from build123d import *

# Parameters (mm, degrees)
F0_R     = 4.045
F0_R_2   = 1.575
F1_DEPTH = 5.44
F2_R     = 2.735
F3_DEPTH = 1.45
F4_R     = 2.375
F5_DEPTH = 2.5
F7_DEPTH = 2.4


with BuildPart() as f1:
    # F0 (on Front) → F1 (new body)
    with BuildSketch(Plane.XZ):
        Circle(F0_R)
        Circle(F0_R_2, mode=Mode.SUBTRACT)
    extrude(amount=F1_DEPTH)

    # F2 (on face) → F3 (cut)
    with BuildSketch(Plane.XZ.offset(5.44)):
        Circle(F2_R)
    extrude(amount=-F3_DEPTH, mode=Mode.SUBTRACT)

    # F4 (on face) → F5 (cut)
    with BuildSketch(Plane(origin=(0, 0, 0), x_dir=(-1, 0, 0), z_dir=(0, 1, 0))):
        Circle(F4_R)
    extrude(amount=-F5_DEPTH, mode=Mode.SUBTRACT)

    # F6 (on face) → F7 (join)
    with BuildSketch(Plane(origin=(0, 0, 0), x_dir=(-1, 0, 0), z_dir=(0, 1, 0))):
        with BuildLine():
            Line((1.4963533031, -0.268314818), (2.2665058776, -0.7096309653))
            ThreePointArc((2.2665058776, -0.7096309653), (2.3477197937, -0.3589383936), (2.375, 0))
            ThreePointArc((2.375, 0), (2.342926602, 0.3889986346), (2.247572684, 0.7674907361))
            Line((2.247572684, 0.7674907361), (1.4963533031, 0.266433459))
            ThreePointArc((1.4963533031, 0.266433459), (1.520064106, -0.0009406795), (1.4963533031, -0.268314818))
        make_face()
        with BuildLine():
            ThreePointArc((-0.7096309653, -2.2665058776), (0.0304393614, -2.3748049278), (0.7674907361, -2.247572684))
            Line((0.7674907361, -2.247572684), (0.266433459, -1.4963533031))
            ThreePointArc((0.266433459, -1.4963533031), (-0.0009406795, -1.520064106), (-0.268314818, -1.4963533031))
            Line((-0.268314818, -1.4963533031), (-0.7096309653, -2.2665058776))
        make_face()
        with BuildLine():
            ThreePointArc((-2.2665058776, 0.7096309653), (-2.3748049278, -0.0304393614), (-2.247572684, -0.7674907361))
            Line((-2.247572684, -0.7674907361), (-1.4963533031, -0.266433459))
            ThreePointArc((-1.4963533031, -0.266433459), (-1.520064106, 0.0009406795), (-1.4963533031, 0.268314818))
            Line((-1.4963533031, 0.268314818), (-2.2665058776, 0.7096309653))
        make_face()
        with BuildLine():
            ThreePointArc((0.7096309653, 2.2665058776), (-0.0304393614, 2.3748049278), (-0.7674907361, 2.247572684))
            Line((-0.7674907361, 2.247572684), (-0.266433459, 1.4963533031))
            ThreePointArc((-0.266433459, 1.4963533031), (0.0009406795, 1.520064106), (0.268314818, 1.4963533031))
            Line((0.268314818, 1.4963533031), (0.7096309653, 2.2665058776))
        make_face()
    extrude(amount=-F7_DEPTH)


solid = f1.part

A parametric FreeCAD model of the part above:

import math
import FreeCAD as App
import Part
import Sketcher
from FreeCAD import Vector
Q = App.Units.Quantity

doc = App.newDocument("Part")
body = doc.addObject("PartDesign::Body", "Body")

sketch1 = body.newObject("Sketcher::SketchObject", "Sketch")
sketch1.AttachmentSupport = (doc.getObject("XZ_Plane"), [""])
sketch1.MapMode = "FlatFace"
sketch1.addGeometry(Part.Circle(Vector(0, 0, 0), Vector(0, 0, 1), 4), False)
sketch1.addGeometry(Part.Circle(Vector(0, 0, 0), Vector(0, 0, 1), 1.6), False)
sketch1.addConstraint(Sketcher.Constraint("Coincident", 0, 3, -1, 1))
sketch1.addConstraint(Sketcher.Constraint("Coincident", 1, 3, -1, 1))
sketch1.addConstraint(Sketcher.Constraint("Diameter", 0, Q("8.09 mm")))
sketch1.addConstraint(Sketcher.Constraint("Diameter", 1, Q("3.15 mm")))
pad1 = body.newObject("PartDesign::Pad", "Pad")
pad1.Profile = sketch1
pad1.Length = 5.44

sketch2 = body.newObject("Sketcher::SketchObject", "Sketch001")
sketch2.AttachmentSupport = (doc.getObject("XZ_Plane"), [""])
sketch2.MapMode = "FlatFace"
sketch2.AttachmentOffset = App.Placement(Vector(0, 0, 5.44), App.Rotation())
sketch2.addGeometry(Part.Circle(Vector(0, 0, 0), Vector(0, 0, 1), 2.7), False)
sketch2.addConstraint(Sketcher.Constraint("Coincident", 0, 3, -1, 1))
sketch2.addConstraint(Sketcher.Constraint("Diameter", 0, Q("5.47 mm")))
pocket1 = body.newObject("PartDesign::Pocket", "Pocket")
pocket1.Profile = sketch2
pocket1.Length = 1.45

sketch3 = body.newObject("Sketcher::SketchObject", "Sketch002")
sketch3.AttachmentSupport = (doc.getObject("XZ_Plane"), [""])
sketch3.MapMode = "FlatFace"
sketch3.addGeometry(Part.Circle(Vector(0, 0, 0), Vector(0, 0, 1), 2.4), False)
sketch3.addConstraint(Sketcher.Constraint("Coincident", 0, 3, -1, 1))
sketch3.addConstraint(Sketcher.Constraint("Diameter", 0, Q("4.75 mm")))
pocket2 = body.newObject("PartDesign::Pocket", "Pocket001")
pocket2.Profile = sketch3
pocket2.Length = 2.5
pocket2.Reversed = True

sketch4 = body.newObject("Sketcher::SketchObject", "Sketch003")
sketch4.AttachmentSupport = (doc.getObject("XZ_Plane"), [""])
sketch4.MapMode = "FlatFace"
sketch4.addGeometry(Part.LineSegment(Vector(-1.5, -0.3, 0), Vector(-2.3, -0.7, 0)), False)
sketch4.addGeometry(Part.ArcOfCircle(Part.Circle(Vector(0, 0, 0), Vector(0, 0, 1), 2.4), math.radians(180), math.radians(197.39)), False)
sketch4.addGeometry(Part.ArcOfCircle(Part.Circle(Vector(0, 0, 0), Vector(0, 0, 1), 2.4), math.radians(161.15), math.radians(180)), False)
sketch4.addGeometry(Part.LineSegment(Vector(-2.2, 0.8, 0), Vector(-1.5, 0.3, 0)), False)
sketch4.addGeometry(Part.ArcOfCircle(Part.Circle(Vector(0, 0, 0), Vector(0, 0, 1), 1.5), math.radians(170), math.radians(190)), False)
sketch4.addGeometry(Part.ArcOfCircle(Part.Circle(Vector(0, 0, 0), Vector(0, 0, 1), 2.4), math.radians(-109), math.radians(-73)), False)
sketch4.addGeometry(Part.LineSegment(Vector(-0.8, -2.2, 0), Vector(-0.3, -1.5, 0)), False)
sketch4.addGeometry(Part.ArcOfCircle(Part.Circle(Vector(0, 0, 0), Vector(0, 0, 1), 1.5), math.radians(-100), math.radians(-80)), False)
sketch4.addGeometry(Part.LineSegment(Vector(0.3, -1.5, 0), Vector(0.7, -2.3, 0)), False)
sketch4.addGeometry(Part.ArcOfCircle(Part.Circle(Vector(0, 0, 0), Vector(0, 0, 1), 2.4), math.radians(-19), math.radians(17)), False)
sketch4.addGeometry(Part.LineSegment(Vector(2.2, -0.8, 0), Vector(1.5, -0.3, 0)), False)
sketch4.addGeometry(Part.ArcOfCircle(Part.Circle(Vector(0, 0, 0), Vector(0, 0, 1), 1.5), math.radians(-10), math.radians(10)), False)
sketch4.addGeometry(Part.LineSegment(Vector(1.5, 0.3, 0), Vector(2.3, 0.7, 0)), False)
sketch4.addGeometry(Part.ArcOfCircle(Part.Circle(Vector(0, 0, 0), Vector(0, 0, 1), 2.4), math.radians(71), math.radians(107)), False)
sketch4.addGeometry(Part.LineSegment(Vector(0.8, 2.2, 0), Vector(0.3, 1.5, 0)), False)
sketch4.addGeometry(Part.ArcOfCircle(Part.Circle(Vector(0, 0, 0), Vector(0, 0, 1), 1.5), math.radians(80), math.radians(100)), False)
sketch4.addGeometry(Part.LineSegment(Vector(-0.3, 1.5, 0), Vector(-0.7, 2.3, 0)), False)
sketch4.addConstraint(Sketcher.Constraint("Coincident", 0, 2, 1, 2))
sketch4.addConstraint(Sketcher.Constraint("Tangent", 1, 1, 2, 2))
sketch4.addConstraint(Sketcher.Constraint("Coincident", 2, 1, 3, 1))
sketch4.addConstraint(Sketcher.Constraint("Coincident", 3, 2, 4, 1))
sketch4.addConstraint(Sketcher.Constraint("Coincident", 4, 2, 0, 1))
sketch4.addConstraint(Sketcher.Constraint("Coincident", 5, 1, 6, 1))
sketch4.addConstraint(Sketcher.Constraint("Coincident", 6, 2, 7, 1))
sketch4.addConstraint(Sketcher.Constraint("Coincident", 7, 2, 8, 1))
sketch4.addConstraint(Sketcher.Constraint("Coincident", 8, 2, 5, 2))
sketch4.addConstraint(Sketcher.Constraint("Coincident", 9, 1, 10, 1))
sketch4.addConstraint(Sketcher.Constraint("Coincident", 10, 2, 11, 1))
sketch4.addConstraint(Sketcher.Constraint("Coincident", 11, 2, 12, 1))
sketch4.addConstraint(Sketcher.Constraint("Coincident", 12, 2, 9, 2))
sketch4.addConstraint(Sketcher.Constraint("Coincident", 13, 1, 14, 1))
sketch4.addConstraint(Sketcher.Constraint("Coincident", 14, 2, 15, 1))
sketch4.addConstraint(Sketcher.Constraint("Coincident", 15, 2, 16, 1))
sketch4.addConstraint(Sketcher.Constraint("Coincident", 16, 2, 13, 2))
sketch4.addConstraint(Sketcher.Constraint("Coincident", 1, 3, -1, 1))
sketch4.addConstraint(Sketcher.Constraint("Coincident", 5, 3, -1, 1))
sketch4.addConstraint(Sketcher.Constraint("Coincident", 9, 3, -1, 1))
sketch4.addConstraint(Sketcher.Constraint("Coincident", 13, 3, -1, 1))
sketch4.addConstraint(Sketcher.Constraint("Equal", 1, 2))
sketch4.addConstraint(Sketcher.Constraint("Equal", 2, 5))
sketch4.addConstraint(Sketcher.Constraint("Equal", 4, 7))
sketch4.addConstraint(Sketcher.Constraint("Equal", 5, 9))
sketch4.addConstraint(Sketcher.Constraint("Equal", 7, 11))
sketch4.addConstraint(Sketcher.Constraint("Equal", 9, 13))
sketch4.addConstraint(Sketcher.Constraint("Equal", 11, 15))
sketch4.addConstraint(Sketcher.Constraint("Symmetric", 4, 3, 11, 3, -1, 1))
sketch4.addConstraint(Sketcher.Constraint("Symmetric", 7, 3, 15, 3, -1, 1))
sketch4.addConstraint(Sketcher.Constraint("PointOnObject", 1, 1, -1))
sketch4.addConstraint(Sketcher.Constraint("Perpendicular", 3, 6))
sketch4.addConstraint(Sketcher.Constraint("Perpendicular", 0, 8))
sketch4.addConstraint(Sketcher.Constraint("Perpendicular", 6, 10))
sketch4.addConstraint(Sketcher.Constraint("Perpendicular", 8, 12))
sketch4.addConstraint(Sketcher.Constraint("Perpendicular", 10, 14))
sketch4.addConstraint(Sketcher.Constraint("Perpendicular", 12, 16))
sketch4.addConstraint(Sketcher.Constraint("Horizontal", 6, 2, 7, 2))
sketch4.addConstraint(Sketcher.Constraint("Horizontal", 14, 2, 15, 2))
sketch4.addConstraint(Sketcher.Constraint("Vertical", 3, 2, 4, 2))
sketch4.addConstraint(Sketcher.Constraint("Vertical", 10, 2, 11, 2))
sketch4.addConstraint(Sketcher.Constraint("Equal", 3, 6))
sketch4.addConstraint(Sketcher.Constraint("Equal", 0, 8))
sketch4.addConstraint(Sketcher.Constraint("Equal", 6, 10))
sketch4.addConstraint(Sketcher.Constraint("Equal", 10, 14))
sketch4.addConstraint(Sketcher.Constraint("Radius", 1, Q("2.375 mm")))
sketch4.addConstraint(Sketcher.Constraint("Radius", 4, Q("1.519374 mm")))
sketch4.addConstraint(Sketcher.Constraint("DistanceY", 15, 3, 2, 1, Q("0.7668 mm")))
sketch4.addConstraint(Sketcher.Constraint("DistanceX", 5, 1, 4, 3, Q("0.7668 mm")))
sketch4.addConstraint(Sketcher.Constraint("Distance", 3, Q("0.902989 mm")))
sketch4.addConstraint(Sketcher.Constraint("DistanceX", 4, 3, -1, 1, Q("0.000691 mm")))
sketch4.addConstraint(Sketcher.Constraint("DistanceY", 4, 3, -1, 1, Q("0.000941 mm")))
sketch4.addConstraint(Sketcher.Constraint("DistanceY", 0, 2, -1, 1, Q("0.709631 mm")))
pad2 = body.newObject("PartDesign::Pad", "Pad001")
pad2.Profile = sketch4
pad2.Length = 2.4

doc.recompute()
